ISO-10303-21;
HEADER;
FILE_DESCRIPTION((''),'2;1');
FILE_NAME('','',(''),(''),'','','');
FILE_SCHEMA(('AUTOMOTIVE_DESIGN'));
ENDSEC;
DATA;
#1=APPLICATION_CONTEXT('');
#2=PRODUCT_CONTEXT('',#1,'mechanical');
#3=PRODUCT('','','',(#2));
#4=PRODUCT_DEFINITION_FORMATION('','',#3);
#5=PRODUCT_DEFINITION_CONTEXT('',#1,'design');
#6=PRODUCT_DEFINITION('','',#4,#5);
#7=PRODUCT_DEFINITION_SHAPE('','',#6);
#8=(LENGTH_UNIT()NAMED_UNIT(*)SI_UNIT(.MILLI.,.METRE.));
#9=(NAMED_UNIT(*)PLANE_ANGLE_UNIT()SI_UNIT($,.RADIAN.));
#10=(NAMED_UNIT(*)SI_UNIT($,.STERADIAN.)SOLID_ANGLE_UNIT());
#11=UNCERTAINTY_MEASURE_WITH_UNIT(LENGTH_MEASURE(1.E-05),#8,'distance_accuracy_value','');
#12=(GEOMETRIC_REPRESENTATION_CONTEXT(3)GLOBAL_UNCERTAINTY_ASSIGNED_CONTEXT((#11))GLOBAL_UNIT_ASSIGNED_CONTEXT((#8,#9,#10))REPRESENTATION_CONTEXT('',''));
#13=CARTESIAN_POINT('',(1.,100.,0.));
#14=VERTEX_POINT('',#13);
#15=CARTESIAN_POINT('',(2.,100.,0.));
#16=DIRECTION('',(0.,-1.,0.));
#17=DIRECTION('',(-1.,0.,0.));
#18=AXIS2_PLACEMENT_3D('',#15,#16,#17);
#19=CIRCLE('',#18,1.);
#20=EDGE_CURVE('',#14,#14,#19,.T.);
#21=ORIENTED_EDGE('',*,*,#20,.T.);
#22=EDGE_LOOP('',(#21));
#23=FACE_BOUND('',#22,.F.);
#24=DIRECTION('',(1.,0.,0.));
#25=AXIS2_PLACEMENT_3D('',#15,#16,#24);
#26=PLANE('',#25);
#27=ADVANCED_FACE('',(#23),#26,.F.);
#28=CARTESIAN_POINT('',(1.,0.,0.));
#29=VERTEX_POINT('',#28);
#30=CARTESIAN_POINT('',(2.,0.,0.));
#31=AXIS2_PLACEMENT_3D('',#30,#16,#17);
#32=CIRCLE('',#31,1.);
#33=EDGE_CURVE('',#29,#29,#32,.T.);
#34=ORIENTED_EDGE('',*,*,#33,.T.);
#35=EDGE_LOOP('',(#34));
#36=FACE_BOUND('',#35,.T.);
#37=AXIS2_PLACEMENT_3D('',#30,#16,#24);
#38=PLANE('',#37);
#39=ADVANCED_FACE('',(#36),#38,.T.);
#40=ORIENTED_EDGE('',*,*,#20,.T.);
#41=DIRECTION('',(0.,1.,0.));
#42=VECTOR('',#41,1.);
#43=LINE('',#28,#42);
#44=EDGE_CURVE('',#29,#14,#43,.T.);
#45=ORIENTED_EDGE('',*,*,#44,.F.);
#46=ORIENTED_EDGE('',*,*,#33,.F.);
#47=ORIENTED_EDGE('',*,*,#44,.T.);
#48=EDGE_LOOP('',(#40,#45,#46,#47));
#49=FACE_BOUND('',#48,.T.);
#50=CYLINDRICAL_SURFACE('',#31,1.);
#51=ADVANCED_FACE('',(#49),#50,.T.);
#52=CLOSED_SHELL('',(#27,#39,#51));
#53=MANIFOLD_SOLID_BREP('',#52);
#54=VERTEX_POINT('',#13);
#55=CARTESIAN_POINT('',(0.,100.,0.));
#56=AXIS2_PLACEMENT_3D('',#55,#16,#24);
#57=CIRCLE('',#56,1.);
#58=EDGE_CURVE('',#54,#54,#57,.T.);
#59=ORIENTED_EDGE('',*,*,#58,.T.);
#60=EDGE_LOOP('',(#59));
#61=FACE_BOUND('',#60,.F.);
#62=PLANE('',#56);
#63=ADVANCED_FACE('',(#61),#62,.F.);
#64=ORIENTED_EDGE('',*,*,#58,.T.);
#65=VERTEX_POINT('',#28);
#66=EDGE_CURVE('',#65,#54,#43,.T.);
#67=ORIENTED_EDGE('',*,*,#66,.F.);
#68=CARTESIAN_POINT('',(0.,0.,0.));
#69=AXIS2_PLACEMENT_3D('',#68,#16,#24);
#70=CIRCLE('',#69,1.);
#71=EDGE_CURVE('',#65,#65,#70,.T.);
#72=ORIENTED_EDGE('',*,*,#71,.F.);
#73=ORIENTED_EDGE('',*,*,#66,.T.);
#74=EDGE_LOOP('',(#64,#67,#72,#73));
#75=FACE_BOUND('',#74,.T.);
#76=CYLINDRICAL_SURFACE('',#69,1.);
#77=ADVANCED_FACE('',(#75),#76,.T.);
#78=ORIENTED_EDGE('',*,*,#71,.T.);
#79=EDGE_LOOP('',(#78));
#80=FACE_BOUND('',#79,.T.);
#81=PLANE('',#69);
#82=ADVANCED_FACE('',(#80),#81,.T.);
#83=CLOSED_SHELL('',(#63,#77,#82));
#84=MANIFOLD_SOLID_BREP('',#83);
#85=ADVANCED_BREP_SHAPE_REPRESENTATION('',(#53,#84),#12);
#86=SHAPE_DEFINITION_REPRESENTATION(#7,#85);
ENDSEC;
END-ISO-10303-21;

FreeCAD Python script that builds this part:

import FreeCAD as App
import Part
import Sketcher

V = App.Vector

doc = App.newDocument("Part")
body = doc.addObject("PartDesign::Body", "Body")
body.AllowCompound = True

sketch1 = body.newObject("Sketcher::SketchObject", "Sketch")
sketch1.AttachmentSupport = (doc.getObject("XZ_Plane"), [""])
sketch1.MapMode = "FlatFace"
sketch1.addGeometry(Part.Circle(V(0, 0, 0), V(0, 0, 1), 1), False)
sketch1.addGeometry(Part.Circle(V(2, 0, 0), V(0, 0, 1), 1), False)
sketch1.addConstraint(Sketcher.Constraint("Coincident", 0, 3, -1, 1))
sketch1.addConstraint(Sketcher.Constraint("Equal", 0, 1))
sketch1.addConstraint(Sketcher.Constraint("PointOnObject", 1, 3, -1))
sketch1.addConstraint(Sketcher.Constraint("Diameter", 0, 2.0))
sketch1.addConstraint(Sketcher.Constraint("DistanceX", -1, 1, 1, 3, 2.0))
pad1 = body.newObject("PartDesign::Pad", "Pad")
pad1.Profile = sketch1
pad1.Length = 100
pad1.Reversed = True

doc.recompute()
